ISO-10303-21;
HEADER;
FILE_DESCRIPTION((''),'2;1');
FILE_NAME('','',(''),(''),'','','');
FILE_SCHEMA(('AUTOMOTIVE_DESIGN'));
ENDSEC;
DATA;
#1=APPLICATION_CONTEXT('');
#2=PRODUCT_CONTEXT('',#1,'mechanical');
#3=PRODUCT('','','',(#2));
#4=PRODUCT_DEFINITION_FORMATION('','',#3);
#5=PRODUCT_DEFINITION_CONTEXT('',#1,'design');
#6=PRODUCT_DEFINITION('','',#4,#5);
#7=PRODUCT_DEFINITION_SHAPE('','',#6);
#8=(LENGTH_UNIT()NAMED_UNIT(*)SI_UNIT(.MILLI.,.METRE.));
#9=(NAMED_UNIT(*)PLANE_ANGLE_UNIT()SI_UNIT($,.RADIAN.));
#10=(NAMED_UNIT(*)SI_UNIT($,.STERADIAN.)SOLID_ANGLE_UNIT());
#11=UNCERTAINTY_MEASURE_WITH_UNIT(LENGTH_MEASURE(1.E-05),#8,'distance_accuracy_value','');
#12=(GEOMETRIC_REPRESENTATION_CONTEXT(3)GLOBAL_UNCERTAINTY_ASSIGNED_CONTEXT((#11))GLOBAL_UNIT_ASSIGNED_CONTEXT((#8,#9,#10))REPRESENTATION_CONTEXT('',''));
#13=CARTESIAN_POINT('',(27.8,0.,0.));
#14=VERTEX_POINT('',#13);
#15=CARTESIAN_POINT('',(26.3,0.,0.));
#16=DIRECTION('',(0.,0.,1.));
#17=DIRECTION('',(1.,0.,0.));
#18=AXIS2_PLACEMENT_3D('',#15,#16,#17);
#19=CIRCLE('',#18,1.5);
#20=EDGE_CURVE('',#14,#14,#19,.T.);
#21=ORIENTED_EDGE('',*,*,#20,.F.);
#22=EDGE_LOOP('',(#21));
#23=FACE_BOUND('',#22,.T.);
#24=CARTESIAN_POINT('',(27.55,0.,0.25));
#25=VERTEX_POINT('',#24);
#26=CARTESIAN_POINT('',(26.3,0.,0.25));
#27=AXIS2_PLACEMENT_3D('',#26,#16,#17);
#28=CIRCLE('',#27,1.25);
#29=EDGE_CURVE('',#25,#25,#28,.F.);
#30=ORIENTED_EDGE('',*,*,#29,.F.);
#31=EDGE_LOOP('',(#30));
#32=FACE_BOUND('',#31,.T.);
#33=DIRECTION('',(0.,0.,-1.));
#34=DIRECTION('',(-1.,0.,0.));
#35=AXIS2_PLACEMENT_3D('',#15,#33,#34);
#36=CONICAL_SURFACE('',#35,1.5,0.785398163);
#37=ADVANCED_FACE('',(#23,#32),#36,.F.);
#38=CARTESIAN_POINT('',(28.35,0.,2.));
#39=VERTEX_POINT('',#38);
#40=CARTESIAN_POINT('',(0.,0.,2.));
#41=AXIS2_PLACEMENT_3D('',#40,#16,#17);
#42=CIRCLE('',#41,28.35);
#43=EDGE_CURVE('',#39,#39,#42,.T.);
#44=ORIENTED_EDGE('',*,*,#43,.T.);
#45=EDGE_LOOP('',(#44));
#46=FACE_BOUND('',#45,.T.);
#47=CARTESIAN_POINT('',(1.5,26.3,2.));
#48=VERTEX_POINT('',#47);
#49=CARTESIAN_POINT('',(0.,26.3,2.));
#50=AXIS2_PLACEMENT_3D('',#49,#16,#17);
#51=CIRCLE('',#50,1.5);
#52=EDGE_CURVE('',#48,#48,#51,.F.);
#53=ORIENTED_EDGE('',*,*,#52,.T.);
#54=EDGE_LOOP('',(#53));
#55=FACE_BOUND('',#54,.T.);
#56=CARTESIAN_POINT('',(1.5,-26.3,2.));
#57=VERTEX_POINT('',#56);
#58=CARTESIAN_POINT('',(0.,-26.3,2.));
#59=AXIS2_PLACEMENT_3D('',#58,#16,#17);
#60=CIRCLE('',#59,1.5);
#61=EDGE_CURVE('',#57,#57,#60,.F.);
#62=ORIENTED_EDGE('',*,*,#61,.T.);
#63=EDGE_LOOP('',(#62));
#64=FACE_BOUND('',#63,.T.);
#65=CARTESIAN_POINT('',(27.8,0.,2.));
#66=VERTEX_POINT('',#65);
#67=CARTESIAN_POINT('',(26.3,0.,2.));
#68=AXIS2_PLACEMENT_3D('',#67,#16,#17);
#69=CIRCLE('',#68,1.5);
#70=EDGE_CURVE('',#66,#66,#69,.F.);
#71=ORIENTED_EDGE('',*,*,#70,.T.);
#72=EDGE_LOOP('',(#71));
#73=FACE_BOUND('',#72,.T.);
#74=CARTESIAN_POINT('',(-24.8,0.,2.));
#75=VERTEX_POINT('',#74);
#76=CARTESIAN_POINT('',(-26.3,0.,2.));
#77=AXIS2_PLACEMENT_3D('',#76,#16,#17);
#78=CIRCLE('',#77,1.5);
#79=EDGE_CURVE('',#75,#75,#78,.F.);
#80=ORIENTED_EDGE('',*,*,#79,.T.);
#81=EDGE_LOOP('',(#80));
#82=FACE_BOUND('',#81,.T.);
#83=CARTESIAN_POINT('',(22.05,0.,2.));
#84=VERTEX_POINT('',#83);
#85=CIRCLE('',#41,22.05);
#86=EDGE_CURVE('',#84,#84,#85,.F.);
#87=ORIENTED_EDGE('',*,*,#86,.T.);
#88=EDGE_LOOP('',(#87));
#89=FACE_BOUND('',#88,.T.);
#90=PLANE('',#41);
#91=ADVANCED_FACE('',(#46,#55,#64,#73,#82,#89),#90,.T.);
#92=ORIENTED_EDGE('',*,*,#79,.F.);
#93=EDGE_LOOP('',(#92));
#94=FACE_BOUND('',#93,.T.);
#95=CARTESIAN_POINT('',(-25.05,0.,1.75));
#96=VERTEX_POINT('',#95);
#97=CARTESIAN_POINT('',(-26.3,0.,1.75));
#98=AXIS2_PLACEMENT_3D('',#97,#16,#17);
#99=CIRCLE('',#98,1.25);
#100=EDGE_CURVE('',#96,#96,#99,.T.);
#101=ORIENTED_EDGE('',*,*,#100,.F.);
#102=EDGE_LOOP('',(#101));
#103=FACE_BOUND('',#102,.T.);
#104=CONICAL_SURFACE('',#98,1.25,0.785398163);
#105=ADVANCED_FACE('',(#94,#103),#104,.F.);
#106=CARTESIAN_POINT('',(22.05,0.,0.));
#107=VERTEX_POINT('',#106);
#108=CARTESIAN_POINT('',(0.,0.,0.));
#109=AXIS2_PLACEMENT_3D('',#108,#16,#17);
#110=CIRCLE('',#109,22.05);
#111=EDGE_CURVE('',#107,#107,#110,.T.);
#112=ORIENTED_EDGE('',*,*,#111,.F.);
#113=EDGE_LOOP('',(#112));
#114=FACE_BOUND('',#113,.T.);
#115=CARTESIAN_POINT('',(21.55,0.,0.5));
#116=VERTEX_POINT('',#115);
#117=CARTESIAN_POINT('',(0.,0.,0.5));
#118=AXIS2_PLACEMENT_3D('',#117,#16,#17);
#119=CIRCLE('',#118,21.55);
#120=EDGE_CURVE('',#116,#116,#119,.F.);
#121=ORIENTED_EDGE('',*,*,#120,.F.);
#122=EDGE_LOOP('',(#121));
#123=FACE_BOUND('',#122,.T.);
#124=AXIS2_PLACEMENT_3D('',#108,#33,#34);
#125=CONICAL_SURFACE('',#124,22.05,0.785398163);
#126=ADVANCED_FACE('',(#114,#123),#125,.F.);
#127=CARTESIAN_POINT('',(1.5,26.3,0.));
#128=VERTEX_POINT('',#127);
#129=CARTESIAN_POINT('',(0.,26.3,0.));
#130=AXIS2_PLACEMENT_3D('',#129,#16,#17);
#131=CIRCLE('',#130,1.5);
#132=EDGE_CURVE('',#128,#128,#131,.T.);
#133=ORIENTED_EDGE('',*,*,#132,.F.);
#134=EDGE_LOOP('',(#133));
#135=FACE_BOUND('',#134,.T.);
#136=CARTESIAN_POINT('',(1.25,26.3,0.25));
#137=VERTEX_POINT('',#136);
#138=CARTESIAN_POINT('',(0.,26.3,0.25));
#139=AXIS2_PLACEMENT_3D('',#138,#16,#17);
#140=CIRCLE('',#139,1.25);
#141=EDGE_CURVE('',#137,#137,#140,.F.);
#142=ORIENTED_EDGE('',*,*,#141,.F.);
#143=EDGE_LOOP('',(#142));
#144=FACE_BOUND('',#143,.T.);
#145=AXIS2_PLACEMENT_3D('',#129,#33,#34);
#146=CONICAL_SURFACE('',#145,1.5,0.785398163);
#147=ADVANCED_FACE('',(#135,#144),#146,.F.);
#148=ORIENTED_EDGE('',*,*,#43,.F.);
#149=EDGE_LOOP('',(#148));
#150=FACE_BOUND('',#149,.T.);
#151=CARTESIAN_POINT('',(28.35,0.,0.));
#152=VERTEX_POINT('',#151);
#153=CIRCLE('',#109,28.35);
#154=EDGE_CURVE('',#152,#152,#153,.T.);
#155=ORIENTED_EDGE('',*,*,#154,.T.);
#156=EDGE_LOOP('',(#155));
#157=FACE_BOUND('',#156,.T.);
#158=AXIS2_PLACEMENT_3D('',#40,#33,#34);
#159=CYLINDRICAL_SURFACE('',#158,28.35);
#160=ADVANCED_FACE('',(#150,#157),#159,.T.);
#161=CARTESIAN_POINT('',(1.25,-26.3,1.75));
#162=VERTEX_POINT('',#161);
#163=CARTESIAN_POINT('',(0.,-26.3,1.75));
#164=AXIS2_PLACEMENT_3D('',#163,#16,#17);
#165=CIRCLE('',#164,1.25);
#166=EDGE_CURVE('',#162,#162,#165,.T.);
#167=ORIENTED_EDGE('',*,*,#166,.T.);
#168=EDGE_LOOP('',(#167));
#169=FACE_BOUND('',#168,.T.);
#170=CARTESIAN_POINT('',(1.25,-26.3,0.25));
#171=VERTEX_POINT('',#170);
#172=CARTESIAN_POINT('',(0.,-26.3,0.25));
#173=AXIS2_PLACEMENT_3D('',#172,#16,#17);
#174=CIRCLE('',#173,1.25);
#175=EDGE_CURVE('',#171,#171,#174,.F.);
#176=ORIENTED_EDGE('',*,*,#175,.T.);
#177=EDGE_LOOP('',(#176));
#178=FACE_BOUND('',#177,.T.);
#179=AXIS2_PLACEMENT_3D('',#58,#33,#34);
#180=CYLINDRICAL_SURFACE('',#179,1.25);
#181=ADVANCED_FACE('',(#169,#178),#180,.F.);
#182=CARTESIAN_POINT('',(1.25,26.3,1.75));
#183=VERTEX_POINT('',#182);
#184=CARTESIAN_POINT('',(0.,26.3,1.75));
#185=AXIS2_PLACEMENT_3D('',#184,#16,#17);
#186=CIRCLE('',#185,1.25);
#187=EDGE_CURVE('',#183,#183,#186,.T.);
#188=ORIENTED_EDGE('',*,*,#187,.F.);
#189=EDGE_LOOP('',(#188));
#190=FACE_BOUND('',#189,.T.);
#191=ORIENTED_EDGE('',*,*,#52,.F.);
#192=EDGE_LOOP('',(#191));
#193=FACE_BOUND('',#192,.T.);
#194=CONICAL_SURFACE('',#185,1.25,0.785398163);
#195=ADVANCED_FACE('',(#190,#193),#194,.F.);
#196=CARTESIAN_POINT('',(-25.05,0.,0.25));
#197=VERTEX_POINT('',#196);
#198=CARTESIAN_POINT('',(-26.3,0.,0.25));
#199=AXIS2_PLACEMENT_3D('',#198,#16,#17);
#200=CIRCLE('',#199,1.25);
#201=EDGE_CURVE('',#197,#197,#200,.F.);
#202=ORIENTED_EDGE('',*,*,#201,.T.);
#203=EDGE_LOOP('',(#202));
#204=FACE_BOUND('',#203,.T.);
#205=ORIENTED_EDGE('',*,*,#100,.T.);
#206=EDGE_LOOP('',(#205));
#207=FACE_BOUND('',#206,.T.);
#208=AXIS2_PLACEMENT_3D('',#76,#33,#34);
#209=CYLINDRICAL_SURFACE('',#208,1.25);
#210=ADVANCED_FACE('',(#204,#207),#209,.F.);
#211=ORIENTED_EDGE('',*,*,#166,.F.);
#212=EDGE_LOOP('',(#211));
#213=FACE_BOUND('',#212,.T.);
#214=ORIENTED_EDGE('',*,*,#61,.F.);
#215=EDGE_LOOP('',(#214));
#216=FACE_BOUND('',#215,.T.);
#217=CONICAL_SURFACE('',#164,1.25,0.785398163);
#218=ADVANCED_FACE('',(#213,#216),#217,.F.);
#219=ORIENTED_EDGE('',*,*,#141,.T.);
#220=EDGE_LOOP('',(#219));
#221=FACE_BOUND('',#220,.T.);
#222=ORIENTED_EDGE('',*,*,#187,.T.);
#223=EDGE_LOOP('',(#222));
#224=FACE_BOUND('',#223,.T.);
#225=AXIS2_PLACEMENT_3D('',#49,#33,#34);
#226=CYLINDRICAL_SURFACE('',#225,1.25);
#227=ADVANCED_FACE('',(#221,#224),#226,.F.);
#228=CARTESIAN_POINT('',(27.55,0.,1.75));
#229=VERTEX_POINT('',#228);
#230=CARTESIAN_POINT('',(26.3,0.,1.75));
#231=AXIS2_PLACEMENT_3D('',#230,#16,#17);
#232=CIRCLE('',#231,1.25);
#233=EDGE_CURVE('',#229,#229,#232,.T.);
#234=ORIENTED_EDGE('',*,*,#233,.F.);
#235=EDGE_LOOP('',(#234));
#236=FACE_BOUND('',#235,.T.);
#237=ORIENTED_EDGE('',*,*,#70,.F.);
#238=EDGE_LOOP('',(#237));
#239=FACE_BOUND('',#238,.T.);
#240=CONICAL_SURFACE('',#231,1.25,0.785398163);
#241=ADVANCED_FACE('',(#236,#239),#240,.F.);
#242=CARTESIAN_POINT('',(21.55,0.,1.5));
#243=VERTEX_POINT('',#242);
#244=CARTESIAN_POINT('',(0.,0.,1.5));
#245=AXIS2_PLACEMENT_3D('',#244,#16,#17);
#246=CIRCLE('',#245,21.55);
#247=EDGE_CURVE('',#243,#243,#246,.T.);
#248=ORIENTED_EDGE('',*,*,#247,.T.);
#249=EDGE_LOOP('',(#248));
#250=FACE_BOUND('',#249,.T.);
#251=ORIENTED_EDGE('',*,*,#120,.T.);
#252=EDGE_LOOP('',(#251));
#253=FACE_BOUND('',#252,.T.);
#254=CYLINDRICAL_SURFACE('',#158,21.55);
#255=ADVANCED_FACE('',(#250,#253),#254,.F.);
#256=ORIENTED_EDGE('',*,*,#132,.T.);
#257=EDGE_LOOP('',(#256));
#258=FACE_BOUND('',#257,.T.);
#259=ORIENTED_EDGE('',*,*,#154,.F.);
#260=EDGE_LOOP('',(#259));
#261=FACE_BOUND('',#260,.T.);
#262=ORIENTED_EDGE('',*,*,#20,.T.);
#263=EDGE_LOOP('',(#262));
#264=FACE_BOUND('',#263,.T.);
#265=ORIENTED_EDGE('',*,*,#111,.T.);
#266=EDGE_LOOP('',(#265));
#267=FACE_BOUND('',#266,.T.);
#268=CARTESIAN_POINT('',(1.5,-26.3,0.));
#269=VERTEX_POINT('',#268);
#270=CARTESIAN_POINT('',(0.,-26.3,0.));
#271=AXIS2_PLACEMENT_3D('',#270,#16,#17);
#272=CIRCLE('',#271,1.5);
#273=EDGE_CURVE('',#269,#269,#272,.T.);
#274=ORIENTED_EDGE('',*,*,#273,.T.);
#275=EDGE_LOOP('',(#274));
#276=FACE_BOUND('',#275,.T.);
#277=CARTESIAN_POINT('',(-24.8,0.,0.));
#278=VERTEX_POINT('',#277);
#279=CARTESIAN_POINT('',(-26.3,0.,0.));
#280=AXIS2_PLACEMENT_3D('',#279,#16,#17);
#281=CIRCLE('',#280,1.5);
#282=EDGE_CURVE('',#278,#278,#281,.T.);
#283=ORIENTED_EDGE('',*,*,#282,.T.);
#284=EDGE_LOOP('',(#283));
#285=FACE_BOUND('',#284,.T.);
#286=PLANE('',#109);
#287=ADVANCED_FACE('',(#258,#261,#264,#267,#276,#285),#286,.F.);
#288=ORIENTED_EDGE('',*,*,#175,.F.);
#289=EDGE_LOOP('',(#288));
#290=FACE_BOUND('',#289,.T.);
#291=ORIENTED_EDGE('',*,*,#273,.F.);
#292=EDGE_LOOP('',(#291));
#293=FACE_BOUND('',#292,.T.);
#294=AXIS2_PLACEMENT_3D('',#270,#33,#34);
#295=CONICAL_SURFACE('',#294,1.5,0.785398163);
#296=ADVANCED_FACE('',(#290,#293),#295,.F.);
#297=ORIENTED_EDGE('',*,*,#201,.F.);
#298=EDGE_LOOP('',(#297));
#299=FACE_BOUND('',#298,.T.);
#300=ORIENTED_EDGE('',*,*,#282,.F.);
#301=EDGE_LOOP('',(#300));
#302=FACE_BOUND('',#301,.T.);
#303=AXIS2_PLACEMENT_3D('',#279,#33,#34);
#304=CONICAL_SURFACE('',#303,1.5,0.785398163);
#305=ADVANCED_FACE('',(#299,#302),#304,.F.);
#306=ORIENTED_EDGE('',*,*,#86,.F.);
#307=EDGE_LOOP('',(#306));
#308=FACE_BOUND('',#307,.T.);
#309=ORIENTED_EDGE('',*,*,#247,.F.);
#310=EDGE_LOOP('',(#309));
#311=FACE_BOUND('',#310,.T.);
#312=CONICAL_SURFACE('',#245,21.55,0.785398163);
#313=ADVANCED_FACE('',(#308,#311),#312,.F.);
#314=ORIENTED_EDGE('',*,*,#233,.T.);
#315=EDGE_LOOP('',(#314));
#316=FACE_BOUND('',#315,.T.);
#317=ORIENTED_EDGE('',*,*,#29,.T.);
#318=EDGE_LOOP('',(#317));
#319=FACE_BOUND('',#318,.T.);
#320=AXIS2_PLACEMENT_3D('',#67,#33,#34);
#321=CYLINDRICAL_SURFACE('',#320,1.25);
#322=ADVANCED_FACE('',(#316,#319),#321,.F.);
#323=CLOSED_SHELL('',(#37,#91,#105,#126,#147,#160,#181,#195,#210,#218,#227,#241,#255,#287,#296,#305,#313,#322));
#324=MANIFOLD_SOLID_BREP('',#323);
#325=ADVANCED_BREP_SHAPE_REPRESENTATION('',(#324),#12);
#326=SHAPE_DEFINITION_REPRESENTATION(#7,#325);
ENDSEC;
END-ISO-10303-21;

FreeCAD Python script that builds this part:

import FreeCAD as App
import Part
import Sketcher


def edges_at(feature, points):
    """Names of the edges that pass closest to the given points."""
    edges = feature.Shape.Edges
    near = lambda p: min(range(len(edges)), key=lambda i: edges[i].distToShape(Part.Vertex(*p))[0])
    return sorted({f"Edge{near(p) + 1}" for p in points})

doc = App.newDocument("Part")
body = doc.addObject("PartDesign::Body", "Body")

# Sketch on XY plane
sketch1 = body.newObject("Sketcher::SketchObject", "Sketch")
sketch1.AttachmentSupport = (doc.getObject("XY_Plane"), [""])
sketch1.MapMode = "FlatFace"
sketch1.addGeometry(Part.Circle(App.Vector(0, 0, 0), App.Vector(0, 0, 1), 28), False)
sketch1.addGeometry(Part.Circle(App.Vector(0, 0, 0), App.Vector(0, 0, 1), 22), False)
sketch1.addConstraint(Sketcher.Constraint("Coincident", 0, 3, -1, 1))
sketch1.addConstraint(Sketcher.Constraint("Coincident", 1, 3, -1, 1))
sketch1.addConstraint(Sketcher.Constraint("Diameter", 0, 56.7))
sketch1.addConstraint(Sketcher.Constraint("Diameter", 1, 43.1))
pad1 = body.newObject("PartDesign::Pad", "Pad")
pad1.Profile = sketch1
pad1.Length = 2
doc.recompute()

chamfer = body.newObject("PartDesign::Chamfer", "Chamfer")
chamfer.Base = (pad1, edges_at(pad1, [(0, -21.55, 0), (0, -21.55, 2)]))
chamfer.Size = 0.5

# Sketch on XY plane
sketch2 = body.newObject("Sketcher::SketchObject", "Sketch001")
sketch2.AttachmentSupport = (doc.getObject("XY_Plane"), [""])
sketch2.MapMode = "FlatFace"
sketch2.addGeometry(Part.Circle(App.Vector(-26.3, 0, 0), App.Vector(0, 0, 1), 1.2), False)
sketch2.addConstraint(Sketcher.Constraint("PointOnObject", 0, 3, -1))
sketch2.addConstraint(Sketcher.Constraint("Diameter", 0, 2.5))
sketch2.addConstraint(Sketcher.Constraint("DistanceX", 0, 3, -1, 1, 26.3))
pocket1 = body.newObject("PartDesign::Pocket", "Pocket")
pocket1.Profile = sketch2
pocket1.Type = "ThroughAll"
pocket1.Reversed = True
doc.recompute()

polarpattern = body.newObject("PartDesign::PolarPattern", "PolarPattern")
polarpattern.Originals = [pocket1]
polarpattern.Axis = (doc.getObject("Z_Axis"), [""])
polarpattern.Angle = 360
polarpattern.Occurrences = 4
body.Tip = polarpattern
doc.recompute()

chamfer2 = body.newObject("PartDesign::Chamfer", "Chamfer001")
chamfer2.Base = (polarpattern, edges_at(polarpattern, [
    (-27.55, 0, 0),
    (-27.55, 0, 2),
    (0, 27.55, 0),
    (0, 27.55, 2),
    (27.55, 0, 0),
    (27.55, 0, 2),
    (0, -27.55, 0),
    (0, -27.55, 2),
]))
chamfer2.Size = 0.25

doc.recompute()
